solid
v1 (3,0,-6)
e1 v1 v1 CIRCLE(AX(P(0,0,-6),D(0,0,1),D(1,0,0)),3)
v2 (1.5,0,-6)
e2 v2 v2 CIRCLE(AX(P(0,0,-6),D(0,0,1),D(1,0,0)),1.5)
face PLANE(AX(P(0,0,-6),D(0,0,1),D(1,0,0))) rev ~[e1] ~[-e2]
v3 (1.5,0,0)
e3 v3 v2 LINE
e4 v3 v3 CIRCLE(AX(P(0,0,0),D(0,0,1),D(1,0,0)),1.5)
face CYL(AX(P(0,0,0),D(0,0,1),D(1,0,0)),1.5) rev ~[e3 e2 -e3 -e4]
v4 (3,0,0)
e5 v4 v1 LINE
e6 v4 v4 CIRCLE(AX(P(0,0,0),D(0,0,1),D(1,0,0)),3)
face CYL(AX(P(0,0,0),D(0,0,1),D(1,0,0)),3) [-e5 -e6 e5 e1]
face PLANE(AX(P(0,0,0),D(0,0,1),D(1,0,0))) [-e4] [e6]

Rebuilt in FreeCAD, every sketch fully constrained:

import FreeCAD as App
import Part
import Sketcher
from FreeCAD import Vector
Q = App.Units.Quantity

doc = App.newDocument("Part")
body = doc.addObject("PartDesign::Body", "Body")

sketch1 = body.newObject("Sketcher::SketchObject", "Sketch")
sketch1.AttachmentSupport = (doc.getObject("XY_Plane"), [""])
sketch1.MapMode = "FlatFace"
sketch1.addGeometry([
    Part.Circle(Vector(0, 0, 0), Vector(0, 0, 1), 3),
    Part.Circle(Vector(0, 0, 0), Vector(0, 0, 1), 1.5),
], False)
sketch1.addConstraint([
    Sketcher.Constraint("Coincident", 0, 3, -1, 1),
    Sketcher.Constraint("Coincident", 1, 3, -1, 1),
    Sketcher.Constraint("Diameter", 0, Q("6 mm")),
    Sketcher.Constraint("Diameter", 1, Q("3 mm")),
])
pad1 = body.newObject("PartDesign::Pad", "Pad")
pad1.Profile = sketch1
pad1.Length = 6
pad1.Reversed = True

doc.recompute()
